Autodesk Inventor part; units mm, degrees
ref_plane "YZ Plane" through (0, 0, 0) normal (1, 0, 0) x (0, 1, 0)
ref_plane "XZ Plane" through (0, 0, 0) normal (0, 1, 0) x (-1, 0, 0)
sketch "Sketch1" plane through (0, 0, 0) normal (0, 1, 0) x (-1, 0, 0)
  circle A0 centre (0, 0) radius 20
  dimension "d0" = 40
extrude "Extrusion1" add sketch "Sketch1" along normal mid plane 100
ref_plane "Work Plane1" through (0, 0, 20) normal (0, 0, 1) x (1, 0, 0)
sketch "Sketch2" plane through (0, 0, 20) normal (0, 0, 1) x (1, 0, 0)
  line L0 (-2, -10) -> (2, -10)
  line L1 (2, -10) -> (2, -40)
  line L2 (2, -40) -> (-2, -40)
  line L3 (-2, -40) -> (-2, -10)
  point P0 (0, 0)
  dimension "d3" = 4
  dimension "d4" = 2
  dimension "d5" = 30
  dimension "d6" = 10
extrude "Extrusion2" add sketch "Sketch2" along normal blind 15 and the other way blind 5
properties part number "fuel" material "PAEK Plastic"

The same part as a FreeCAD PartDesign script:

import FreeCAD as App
import Part
import Sketcher

V = App.Vector
Q = App.Units.Quantity


def add_polygon(sketch, points):
    """Adds a closed chain of lines whose ends are joined by coincident constraints."""
    first, n = sketch.GeometryCount, len(points)
    for a, b in zip(points, points[1:] + points[:1]):
        sketch.addGeometry(Part.LineSegment(App.Vector(*a, 0), App.Vector(*b, 0)), False)
    for i in range(n):
        sketch.addConstraint(Sketcher.Constraint("Coincident", first + i, 2, first + (i + 1) % n, 1))

doc = App.newDocument("Part")
body = doc.addObject("PartDesign::Body", "Body")

sketch1 = doc.addObject("Sketcher::SketchObject", "Sketch")
body.addObject(sketch1)
sketch1.AttachmentSupport = (doc.XZ_Plane, [""])
sketch1.MapMode = "FlatFace"
sketch1.addGeometry(Part.Circle(V(0, 0, 0), V(0, 0, 1), 20), False)
sketch1.addConstraint(Sketcher.Constraint("Coincident", 0, 3, -1, 1))
sketch1.addConstraint(Sketcher.Constraint("Diameter", 0, Q("40 mm")))
pad1 = doc.addObject("PartDesign::Pad", "Pad")
body.addObject(pad1)
pad1.Profile = sketch1
pad1.Length = 100
pad1.Midplane = True

sketch2 = doc.addObject("Sketcher::SketchObject", "Sketch001")
body.addObject(sketch2)
sketch2.AttachmentSupport = (doc.XY_Plane, [""])
sketch2.MapMode = "FlatFace"
sketch2.AttachmentOffset = App.Placement(V(0, 0, 20), App.Rotation())
add_polygon(sketch2, [(2, -10), (-2, -10), (-2, -40), (2, -40)])
sketch2.addConstraint(Sketcher.Constraint("Horizontal", 0))
sketch2.addConstraint(Sketcher.Constraint("Vertical", 1))
sketch2.addConstraint(Sketcher.Constraint("Horizontal", 2))
sketch2.addConstraint(Sketcher.Constraint("Vertical", 3))
sketch2.addConstraint(Sketcher.Constraint("DistanceX", 0, 2, 0, 1, Q("4 mm")))
sketch2.addConstraint(Sketcher.Constraint("DistanceY", 1, 2, 1, 1, Q("30 mm")))
sketch2.addConstraint(Sketcher.Constraint("DistanceX", 0, 2, -1, 1, Q("2 mm")))
sketch2.addConstraint(Sketcher.Constraint("DistanceY", 0, 2, -1, 1, Q("10 mm")))
pad2 = doc.addObject("PartDesign::Pad", "Pad001")
body.addObject(pad2)
pad2.Profile = sketch2
pad2.Type = "TwoLengths"
pad2.Length = 15
pad2.Length2 = 5

doc.recompute()
